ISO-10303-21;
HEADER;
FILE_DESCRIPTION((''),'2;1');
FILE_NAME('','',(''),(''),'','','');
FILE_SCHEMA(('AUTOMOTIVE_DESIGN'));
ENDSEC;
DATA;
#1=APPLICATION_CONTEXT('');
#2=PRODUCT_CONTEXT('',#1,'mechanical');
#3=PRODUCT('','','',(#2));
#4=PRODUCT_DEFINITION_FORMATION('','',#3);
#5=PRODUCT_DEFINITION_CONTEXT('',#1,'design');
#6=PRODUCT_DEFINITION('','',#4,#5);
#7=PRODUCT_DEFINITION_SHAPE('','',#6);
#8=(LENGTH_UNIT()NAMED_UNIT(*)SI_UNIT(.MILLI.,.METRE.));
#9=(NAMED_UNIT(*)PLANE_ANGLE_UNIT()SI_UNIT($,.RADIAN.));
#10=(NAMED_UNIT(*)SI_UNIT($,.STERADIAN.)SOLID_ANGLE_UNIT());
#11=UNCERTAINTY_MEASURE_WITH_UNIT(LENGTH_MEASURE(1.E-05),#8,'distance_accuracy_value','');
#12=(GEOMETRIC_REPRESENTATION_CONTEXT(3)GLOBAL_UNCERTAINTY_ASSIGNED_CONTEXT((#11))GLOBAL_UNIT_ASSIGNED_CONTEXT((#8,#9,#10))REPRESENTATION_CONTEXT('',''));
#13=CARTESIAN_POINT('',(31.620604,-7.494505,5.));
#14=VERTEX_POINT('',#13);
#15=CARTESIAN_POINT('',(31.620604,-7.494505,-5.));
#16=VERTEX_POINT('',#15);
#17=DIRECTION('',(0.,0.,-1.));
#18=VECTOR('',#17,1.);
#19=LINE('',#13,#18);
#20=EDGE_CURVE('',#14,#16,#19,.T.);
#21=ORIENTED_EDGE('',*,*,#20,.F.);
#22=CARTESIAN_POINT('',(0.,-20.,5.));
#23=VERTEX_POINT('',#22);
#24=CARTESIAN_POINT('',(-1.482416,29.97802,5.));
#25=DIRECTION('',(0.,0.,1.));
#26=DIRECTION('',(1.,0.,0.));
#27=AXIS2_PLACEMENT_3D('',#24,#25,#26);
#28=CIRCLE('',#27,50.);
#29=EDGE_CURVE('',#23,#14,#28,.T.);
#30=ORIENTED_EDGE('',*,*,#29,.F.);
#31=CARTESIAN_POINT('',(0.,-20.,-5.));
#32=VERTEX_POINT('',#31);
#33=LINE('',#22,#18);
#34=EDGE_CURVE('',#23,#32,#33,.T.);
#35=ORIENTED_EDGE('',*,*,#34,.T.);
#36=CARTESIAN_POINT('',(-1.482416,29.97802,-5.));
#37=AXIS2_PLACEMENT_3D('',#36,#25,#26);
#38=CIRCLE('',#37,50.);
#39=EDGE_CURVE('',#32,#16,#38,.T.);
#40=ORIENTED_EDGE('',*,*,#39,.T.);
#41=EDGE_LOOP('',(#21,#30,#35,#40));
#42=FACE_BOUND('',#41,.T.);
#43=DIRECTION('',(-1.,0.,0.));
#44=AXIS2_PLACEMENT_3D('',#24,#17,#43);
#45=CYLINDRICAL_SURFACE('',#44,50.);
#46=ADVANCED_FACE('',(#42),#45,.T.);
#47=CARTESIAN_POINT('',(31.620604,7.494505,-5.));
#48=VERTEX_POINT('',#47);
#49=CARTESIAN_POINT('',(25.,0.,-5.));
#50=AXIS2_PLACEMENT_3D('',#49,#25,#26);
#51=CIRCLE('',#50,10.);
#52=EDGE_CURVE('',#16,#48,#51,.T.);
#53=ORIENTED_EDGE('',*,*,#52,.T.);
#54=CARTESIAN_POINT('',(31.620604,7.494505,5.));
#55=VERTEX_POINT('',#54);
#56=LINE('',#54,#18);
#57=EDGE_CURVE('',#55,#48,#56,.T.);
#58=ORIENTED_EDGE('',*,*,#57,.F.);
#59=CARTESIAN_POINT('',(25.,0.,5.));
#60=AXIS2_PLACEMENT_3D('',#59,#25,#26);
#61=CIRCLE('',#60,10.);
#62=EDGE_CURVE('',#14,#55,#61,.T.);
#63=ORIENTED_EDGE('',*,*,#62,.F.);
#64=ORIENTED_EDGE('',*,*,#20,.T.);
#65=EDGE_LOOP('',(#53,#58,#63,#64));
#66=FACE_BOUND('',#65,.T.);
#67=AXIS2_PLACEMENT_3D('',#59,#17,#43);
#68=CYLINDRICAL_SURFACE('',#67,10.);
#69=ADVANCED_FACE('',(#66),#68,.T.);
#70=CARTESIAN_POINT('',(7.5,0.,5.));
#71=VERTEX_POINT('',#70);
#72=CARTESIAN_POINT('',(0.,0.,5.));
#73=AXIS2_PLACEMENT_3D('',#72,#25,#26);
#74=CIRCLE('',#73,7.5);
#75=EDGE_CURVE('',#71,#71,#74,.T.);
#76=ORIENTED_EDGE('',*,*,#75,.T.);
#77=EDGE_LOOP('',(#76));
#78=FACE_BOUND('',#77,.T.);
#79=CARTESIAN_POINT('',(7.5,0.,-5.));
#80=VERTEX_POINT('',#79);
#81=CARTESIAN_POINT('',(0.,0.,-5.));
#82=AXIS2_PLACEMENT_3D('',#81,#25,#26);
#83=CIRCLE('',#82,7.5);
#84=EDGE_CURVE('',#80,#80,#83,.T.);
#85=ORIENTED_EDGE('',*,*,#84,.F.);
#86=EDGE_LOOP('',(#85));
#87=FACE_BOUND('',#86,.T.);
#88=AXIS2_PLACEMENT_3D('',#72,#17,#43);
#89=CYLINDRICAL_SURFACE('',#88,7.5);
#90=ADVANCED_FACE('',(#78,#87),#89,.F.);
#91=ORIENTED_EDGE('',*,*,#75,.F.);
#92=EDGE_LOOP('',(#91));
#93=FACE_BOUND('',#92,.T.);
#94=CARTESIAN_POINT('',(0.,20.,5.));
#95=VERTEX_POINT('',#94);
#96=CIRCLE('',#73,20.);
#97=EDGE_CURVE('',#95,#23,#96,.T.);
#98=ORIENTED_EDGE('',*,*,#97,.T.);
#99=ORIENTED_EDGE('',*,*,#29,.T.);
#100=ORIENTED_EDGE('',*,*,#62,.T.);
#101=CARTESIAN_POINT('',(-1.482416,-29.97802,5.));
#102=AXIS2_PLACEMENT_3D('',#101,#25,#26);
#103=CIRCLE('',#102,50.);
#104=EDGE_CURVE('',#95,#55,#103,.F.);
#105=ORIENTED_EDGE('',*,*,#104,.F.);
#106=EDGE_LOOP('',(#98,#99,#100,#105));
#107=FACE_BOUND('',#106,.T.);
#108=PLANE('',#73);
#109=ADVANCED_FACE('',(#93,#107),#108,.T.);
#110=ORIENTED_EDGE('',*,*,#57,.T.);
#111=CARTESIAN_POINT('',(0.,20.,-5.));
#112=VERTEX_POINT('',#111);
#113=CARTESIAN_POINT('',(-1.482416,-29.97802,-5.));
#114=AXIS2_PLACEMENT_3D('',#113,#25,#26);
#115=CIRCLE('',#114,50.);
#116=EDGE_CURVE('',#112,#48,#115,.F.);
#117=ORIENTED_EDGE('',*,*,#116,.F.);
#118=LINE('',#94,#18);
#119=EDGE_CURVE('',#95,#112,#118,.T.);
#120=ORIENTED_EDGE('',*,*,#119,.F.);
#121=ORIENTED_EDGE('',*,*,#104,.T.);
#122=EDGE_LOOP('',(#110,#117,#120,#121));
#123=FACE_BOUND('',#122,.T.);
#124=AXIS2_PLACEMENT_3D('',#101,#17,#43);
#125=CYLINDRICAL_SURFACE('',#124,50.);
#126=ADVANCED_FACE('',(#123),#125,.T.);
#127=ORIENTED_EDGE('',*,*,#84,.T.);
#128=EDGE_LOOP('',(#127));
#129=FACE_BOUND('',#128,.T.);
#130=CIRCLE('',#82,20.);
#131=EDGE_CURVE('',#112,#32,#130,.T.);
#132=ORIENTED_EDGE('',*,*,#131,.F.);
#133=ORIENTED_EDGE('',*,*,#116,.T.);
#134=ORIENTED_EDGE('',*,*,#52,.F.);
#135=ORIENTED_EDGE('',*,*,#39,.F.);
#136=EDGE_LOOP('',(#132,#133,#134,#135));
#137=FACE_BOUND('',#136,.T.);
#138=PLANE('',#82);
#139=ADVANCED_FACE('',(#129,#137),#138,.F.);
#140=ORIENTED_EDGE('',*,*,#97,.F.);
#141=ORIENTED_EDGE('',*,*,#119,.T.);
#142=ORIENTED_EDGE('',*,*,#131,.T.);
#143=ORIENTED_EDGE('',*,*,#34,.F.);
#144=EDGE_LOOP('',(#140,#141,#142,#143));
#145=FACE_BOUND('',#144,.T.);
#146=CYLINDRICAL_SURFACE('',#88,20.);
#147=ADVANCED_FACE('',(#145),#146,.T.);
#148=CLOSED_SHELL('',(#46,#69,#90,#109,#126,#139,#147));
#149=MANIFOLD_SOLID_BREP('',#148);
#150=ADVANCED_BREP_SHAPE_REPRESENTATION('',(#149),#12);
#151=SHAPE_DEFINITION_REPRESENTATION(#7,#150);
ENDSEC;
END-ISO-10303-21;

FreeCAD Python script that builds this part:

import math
import FreeCAD as App
import Part
import Sketcher

V = App.Vector
Q = App.Units.Quantity

doc = App.newDocument("Part")
params = doc.addObject("Spreadsheet::Sheet", "Params")
for row, (alias, value) in enumerate([
    ("sketch1_diameter", "15 mm"),
    ("sketch1_radius", "50 mm"),
    ("sketch1_radius2", "20 mm"),
    ("sketch1_radius3", "10 mm"),
    ("pad1_length", "10 mm"),
], start=1):
    params.set(f"A{row}", alias)
    params.set(f"B{row}", "=" + value)
    params.setAlias(f"B{row}", alias)

body = doc.addObject("PartDesign::Body", "Body")

sketch1 = body.newObject("Sketcher::SketchObject", "Sketch")
sketch1.AttachmentSupport = (doc.getObject("XY_Plane"), [""])
sketch1.MapMode = "FlatFace"
sketch1.addGeometry([
    Part.ArcOfCircle(Part.Circle(V(-1.482416, -29.97802, 0), V(0, 0, 1), 50), math.radians(48.5428), math.radians(86.037022)),
    Part.ArcOfCircle(Part.Circle(V(-1.482416, -29.97802, 0), V(0, 0, 1), 50.000001), math.radians(86.037022), math.radians(88.301028)),
    Part.ArcOfCircle(Part.Circle(V(0, 0, 0), V(0, 0, 1), 20), math.radians(90), math.radians(270)),
    Part.ArcOfCircle(Part.Circle(V(-1.482416, 29.97802, 0), V(0, 0, 1), 50.000001), math.radians(-88.301028), math.radians(-86.037022)),
    Part.ArcOfCircle(Part.Circle(V(-1.482416, 29.97802, 0), V(0, 0, 1), 50), math.radians(-86.037022), math.radians(-48.5428)),
    Part.ArcOfCircle(Part.Circle(V(25, 0, 0), V(0, 0, 1), 10), math.radians(-48.5428), math.radians(48.5428)),
    Part.Circle(V(0, 0, 0), V(0, 0, 1), 7.5),
], False)
sketch1.addConstraint([
    Sketcher.Constraint("Tangent", 0, 2, 1, 1),
    Sketcher.Constraint("Coincident", 1, 2, 2, 1),
    Sketcher.Constraint("Coincident", 2, 2, 3, 1),
    Sketcher.Constraint("Tangent", 3, 2, 4, 1),
    Sketcher.Constraint("Tangent", 4, 2, 5, 1),
    Sketcher.Constraint("Tangent", 5, 2, 0, 1),
    Sketcher.Constraint("Coincident", 2, 3, -1, 1),
    Sketcher.Constraint("Coincident", 6, 3, -1, 1),
    Sketcher.Constraint("Equal", 0, 1),
    Sketcher.Constraint("Equal", 1, 3),
    Sketcher.Constraint("Equal", 3, 4),
    Sketcher.Constraint("Symmetric", 0, 3, 3, 3, -1),
    Sketcher.Constraint("PointOnObject", 1, 2, -2),
    Sketcher.Constraint("Vertical", 0, 2, 3, 2),
    Sketcher.Constraint("Diameter", 6, Q("15 mm")),
    Sketcher.Constraint("Radius", 0, Q("50 mm")),
    Sketcher.Constraint("Radius", 2, Q("20 mm")),
    Sketcher.Constraint("Radius", 5, Q("10 mm")),
    Sketcher.Constraint("DistanceX", -1, 1, 5, 3, Q("25 mm")),
    Sketcher.Constraint("DistanceX", -1, 1, 0, 2, Q("1.973178 mm")),
])
sketch1.setExpression("Constraints[14]", "Params.sketch1_diameter")
sketch1.setExpression("Constraints[15]", "Params.sketch1_radius")
sketch1.setExpression("Constraints[16]", "Params.sketch1_radius2")
sketch1.setExpression("Constraints[17]", "Params.sketch1_radius3")
pad1 = body.newObject("PartDesign::Pad", "Pad")
pad1.Profile = sketch1
pad1.setExpression("Length", "Params.pad1_length")
pad1.Midplane = True

doc.recompute()
